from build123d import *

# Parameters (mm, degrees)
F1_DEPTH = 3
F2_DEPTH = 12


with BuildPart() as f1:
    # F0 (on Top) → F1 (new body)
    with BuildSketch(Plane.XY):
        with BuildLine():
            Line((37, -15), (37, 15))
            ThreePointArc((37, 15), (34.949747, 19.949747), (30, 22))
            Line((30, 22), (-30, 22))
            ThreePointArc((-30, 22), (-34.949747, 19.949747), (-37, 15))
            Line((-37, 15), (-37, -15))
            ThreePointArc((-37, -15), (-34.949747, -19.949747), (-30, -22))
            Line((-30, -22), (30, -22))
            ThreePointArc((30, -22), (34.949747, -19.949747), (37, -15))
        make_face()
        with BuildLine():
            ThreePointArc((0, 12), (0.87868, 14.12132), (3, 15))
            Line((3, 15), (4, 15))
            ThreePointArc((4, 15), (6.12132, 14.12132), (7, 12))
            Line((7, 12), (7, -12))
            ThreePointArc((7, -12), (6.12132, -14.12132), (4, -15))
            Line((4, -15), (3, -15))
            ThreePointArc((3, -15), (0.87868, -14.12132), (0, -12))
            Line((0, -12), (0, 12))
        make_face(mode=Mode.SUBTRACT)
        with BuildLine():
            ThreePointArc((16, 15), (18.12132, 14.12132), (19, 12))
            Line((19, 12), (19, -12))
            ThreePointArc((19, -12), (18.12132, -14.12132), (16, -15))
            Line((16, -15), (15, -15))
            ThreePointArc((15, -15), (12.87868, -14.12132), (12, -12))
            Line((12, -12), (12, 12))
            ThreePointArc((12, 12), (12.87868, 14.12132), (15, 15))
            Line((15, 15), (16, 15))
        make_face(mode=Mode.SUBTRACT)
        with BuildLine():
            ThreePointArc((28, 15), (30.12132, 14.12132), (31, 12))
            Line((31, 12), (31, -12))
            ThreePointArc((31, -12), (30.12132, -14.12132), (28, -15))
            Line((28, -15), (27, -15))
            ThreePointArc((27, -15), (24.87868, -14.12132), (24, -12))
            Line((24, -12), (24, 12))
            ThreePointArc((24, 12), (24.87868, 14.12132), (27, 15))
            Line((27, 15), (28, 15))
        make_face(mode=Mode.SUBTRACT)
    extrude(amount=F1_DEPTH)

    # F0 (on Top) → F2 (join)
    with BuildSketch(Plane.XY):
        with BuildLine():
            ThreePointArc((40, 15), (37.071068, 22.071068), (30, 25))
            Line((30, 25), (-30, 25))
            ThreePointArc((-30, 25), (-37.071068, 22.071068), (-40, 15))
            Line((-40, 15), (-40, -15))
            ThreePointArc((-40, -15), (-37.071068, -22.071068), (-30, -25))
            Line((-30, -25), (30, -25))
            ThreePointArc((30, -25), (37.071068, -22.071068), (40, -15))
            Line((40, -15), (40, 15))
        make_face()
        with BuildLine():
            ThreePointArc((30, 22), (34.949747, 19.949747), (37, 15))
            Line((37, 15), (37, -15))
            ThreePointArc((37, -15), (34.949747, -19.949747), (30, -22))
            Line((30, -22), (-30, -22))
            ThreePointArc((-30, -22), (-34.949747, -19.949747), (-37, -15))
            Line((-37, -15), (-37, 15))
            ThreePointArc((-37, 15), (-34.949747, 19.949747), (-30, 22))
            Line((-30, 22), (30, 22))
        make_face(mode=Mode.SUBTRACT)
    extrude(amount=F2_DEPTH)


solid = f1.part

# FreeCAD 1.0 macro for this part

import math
import FreeCAD as App
import Part
import Sketcher

V = App.Vector
Q = App.Units.Quantity

doc = App.newDocument("Part")
params = doc.addObject("Spreadsheet::Sheet", "Params")
for row, (alias, value) in enumerate([
    ("sketch1_radius", "7.000002 mm"),
    ("sketch1_radius2", "3.000001 mm"),
    ("sketch1_width", "60 mm"),
    ("sketch1_width2", "1 mm"),
    ("sketch1_height", "30 mm"),
    ("pad1_length", "3 mm"),
    ("sketch2_radius", "9.999999 mm"),
    ("sketch2_radius2", "7.000002 mm"),
    ("sketch2_width", "60 mm"),
    ("sketch2_height", "30 mm"),
    ("pad2_length", "12 mm"),
], start=1):
    params.set(f"A{row}", alias)
    params.set(f"B{row}", "=" + value)
    params.setAlias(f"B{row}", alias)

body = doc.addObject("PartDesign::Body", "Body")

# Sketch on XY plane
sketch1 = body.newObject("Sketcher::SketchObject", "Sketch")
sketch1.AttachmentSupport = (doc.getObject("XY_Plane"), [""])
sketch1.MapMode = "FlatFace"
sketch1.addGeometry([
    Part.LineSegment(V(37, -15, 0), V(37, 15, 0)),  # 0
    Part.ArcOfCircle(Part.Circle(V(30, 15, 0), V(0, 0, 1), 7), math.radians(0), math.radians(90)),  # 1
    Part.LineSegment(V(30, 22, 0), V(-30, 22, 0)),  # 2
    Part.ArcOfCircle(Part.Circle(V(-30, 15, 0), V(0, 0, 1), 7), math.radians(90), math.radians(180)),  # 3
    Part.LineSegment(V(-37, 15, 0), V(-37, -15, 0)),  # 4
    Part.ArcOfCircle(Part.Circle(V(-30, -15, 0), V(0, 0, 1), 7), math.radians(-180), math.radians(-90)),  # 5
    Part.LineSegment(V(-30, -22, 0), V(30, -22, 0)),  # 6
    Part.ArcOfCircle(Part.Circle(V(30, -15, 0), V(0, 0, 1), 7), math.radians(-90), math.radians(0)),  # 7
    Part.LineSegment(V(0, -12, 0), V(0, 12, 0)),  # 8
    Part.ArcOfCircle(Part.Circle(V(3, 12, 0), V(0, 0, 1), 3), math.radians(90), math.radians(180)),  # 9
    Part.LineSegment(V(3, 15, 0), V(4, 15, 0)),  # 10
    Part.ArcOfCircle(Part.Circle(V(4, 12, 0), V(0, 0, 1), 3), math.radians(0), math.radians(90)),  # 11
    Part.LineSegment(V(7, 12, 0), V(7, -12, 0)),  # 12
    Part.ArcOfCircle(Part.Circle(V(4, -12, 0), V(0, 0, 1), 3), math.radians(-90), math.radians(0)),  # 13
    Part.LineSegment(V(4, -15, 0), V(3, -15, 0)),  # 14
    Part.ArcOfCircle(Part.Circle(V(3, -12, 0), V(0, 0, 1), 3), math.radians(-180), math.radians(-90)),  # 15
    Part.LineSegment(V(15, 15, 0), V(16, 15, 0)),  # 16
    Part.ArcOfCircle(Part.Circle(V(16, 12, 0), V(0, 0, 1), 3), math.radians(0), math.radians(90)),  # 17
    Part.LineSegment(V(19, 12, 0), V(19, -12, 0)),  # 18
    Part.ArcOfCircle(Part.Circle(V(16, -12, 0), V(0, 0, 1), 3), math.radians(-90), math.radians(0)),  # 19
    Part.LineSegment(V(16, -15, 0), V(15, -15, 0)),  # 20
    Part.ArcOfCircle(Part.Circle(V(15, -12, 0), V(0, 0, 1), 3), math.radians(-180), math.radians(-90)),  # 21
    Part.LineSegment(V(12, -12, 0), V(12, 12, 0)),  # 22
    Part.ArcOfCircle(Part.Circle(V(15, 12, 0), V(0, 0, 1), 3), math.radians(90), math.radians(180)),  # 23
    Part.LineSegment(V(27, 15, 0), V(28, 15, 0)),  # 24
    Part.ArcOfCircle(Part.Circle(V(28, 12, 0), V(0, 0, 1), 3), math.radians(0), math.radians(90)),  # 25
    Part.LineSegment(V(31, 12, 0), V(31, -12, 0)),  # 26
    Part.ArcOfCircle(Part.Circle(V(28, -12, 0), V(0, 0, 1), 3), math.radians(-90), math.radians(0)),  # 27
    Part.LineSegment(V(28, -15, 0), V(27, -15, 0)),  # 28
    Part.ArcOfCircle(Part.Circle(V(27, -12, 0), V(0, 0, 1), 3), math.radians(-180), math.radians(-90)),  # 29
    Part.LineSegment(V(24, -12, 0), V(24, 12, 0)),  # 30
    Part.ArcOfCircle(Part.Circle(V(27, 12, 0), V(0, 0, 1), 3), math.radians(90), math.radians(180)),  # 31
], False)
sketch1.addConstraint([
    Sketcher.Constraint("Tangent", 0, 2, 1, 1),
    Sketcher.Constraint("Tangent", 1, 2, 2, 1),
    Sketcher.Constraint("Tangent", 2, 2, 3, 1),
    Sketcher.Constraint("Tangent", 3, 2, 4, 1),
    Sketcher.Constraint("Tangent", 4, 2, 5, 1),
    Sketcher.Constraint("Tangent", 5, 2, 6, 1),
    Sketcher.Constraint("Tangent", 6, 2, 7, 1),
    Sketcher.Constraint("Tangent", 7, 2, 0, 1),
    Sketcher.Constraint("Tangent", 8, 2, 9, 2),
    Sketcher.Constraint("Tangent", 9, 1, 10, 1),
    Sketcher.Constraint("Tangent", 10, 2, 11, 2),
    Sketcher.Constraint("Tangent", 11, 1, 12, 1),
    Sketcher.Constraint("Tangent", 12, 2, 13, 2),
    Sketcher.Constraint("Tangent", 13, 1, 14, 1),
    Sketcher.Constraint("Tangent", 14, 2, 15, 2),
    Sketcher.Constraint("Tangent", 15, 1, 8, 1),
    Sketcher.Constraint("Tangent", 16, 2, 17, 2),
    Sketcher.Constraint("Tangent", 17, 1, 18, 1),
    Sketcher.Constraint("Tangent", 18, 2, 19, 2),
    Sketcher.Constraint("Tangent", 19, 1, 20, 1),
    Sketcher.Constraint("Tangent", 20, 2, 21, 2),
    Sketcher.Constraint("Tangent", 21, 1, 22, 1),
    Sketcher.Constraint("Tangent", 22, 2, 23, 2),
    Sketcher.Constraint("Tangent", 23, 1, 16, 1),
    Sketcher.Constraint("Tangent", 24, 2, 25, 2),
    Sketcher.Constraint("Tangent", 25, 1, 26, 1),
    Sketcher.Constraint("Tangent", 26, 2, 27, 2),
    Sketcher.Constraint("Tangent", 27, 1, 28, 1),
    Sketcher.Constraint("Tangent", 28, 2, 29, 2),
    Sketcher.Constraint("Tangent", 29, 1, 30, 1),
    Sketcher.Constraint("Tangent", 30, 2, 31, 2),
    Sketcher.Constraint("Tangent", 31, 1, 24, 1),
    Sketcher.Constraint("Vertical", 0),
    Sketcher.Constraint("Horizontal", 2),
    Sketcher.Constraint("Vertical", 4),
    Sketcher.Constraint("Horizontal", 6),
    Sketcher.Constraint("Vertical", 8),
    Sketcher.Constraint("Horizontal", 10),
    Sketcher.Constraint("Vertical", 12),
    Sketcher.Constraint("Horizontal", 14),
    Sketcher.Constraint("Horizontal", 16),
    Sketcher.Constraint("Vertical", 18),
    Sketcher.Constraint("Horizontal", 20),
    Sketcher.Constraint("Vertical", 22),
    Sketcher.Constraint("Horizontal", 24),
    Sketcher.Constraint("Vertical", 26),
    Sketcher.Constraint("Horizontal", 28),
    Sketcher.Constraint("Vertical", 30),
    Sketcher.Constraint("Equal", 1, 3),
    Sketcher.Constraint("Equal", 3, 5),
    Sketcher.Constraint("Equal", 5, 7),
    Sketcher.Constraint("Equal", 9, 11),
    Sketcher.Constraint("Equal", 11, 13),
    Sketcher.Constraint("Equal", 13, 15),
    Sketcher.Constraint("Equal", 15, 17),
    Sketcher.Constraint("Equal", 17, 19),
    Sketcher.Constraint("Equal", 19, 21),
    Sketcher.Constraint("Equal", 21, 23),
    Sketcher.Constraint("Equal", 23, 25),
    Sketcher.Constraint("Equal", 25, 27),
    Sketcher.Constraint("Equal", 27, 29),
    Sketcher.Constraint("Equal", 29, 31),
    Sketcher.Constraint("Symmetric", 1, 3, 5, 3, -1, 1),
    Sketcher.Constraint("Symmetric", 8, 2, 15, 1, -1, 1),
    Sketcher.Constraint("Horizontal", 11, 3, 17, 3),
    Sketcher.Constraint("Horizontal", 15, 3, 19, 3),
    Sketcher.Constraint("Horizontal", 23, 3, 25, 3),
    Sketcher.Constraint("Horizontal", 21, 3, 27, 3),
    Sketcher.Constraint("Horizontal", 3, 2, 9, 1),
    Sketcher.Constraint("Equal", 14, 16),
    Sketcher.Constraint("Equal", 20, 24),
    Sketcher.Constraint("Radius", 1, Q("7.000002 mm")),
    Sketcher.Constraint("Radius", 9, Q("3.000001 mm")),
    Sketcher.Constraint("DistanceX", 2, 2, 2, 1, Q("60 mm")),
    Sketcher.Constraint("DistanceX", 10, 1, 10, 2, Q("1 mm")),
    Sketcher.Constraint("DistanceY", 0, 1, 0, 2, Q("30 mm")),
    Sketcher.Constraint("DistanceX", -1, 1, 17, 3, Q("15.999999 mm")),
    Sketcher.Constraint("DistanceX", -1, 1, 25, 3, Q("27.999999 mm")),
])
sketch1.setExpression("Constraints[71]", "Params.sketch1_radius")
sketch1.setExpression("Constraints[72]", "Params.sketch1_radius2")
sketch1.setExpression("Constraints[73]", "Params.sketch1_width")
sketch1.setExpression("Constraints[74]", "Params.sketch1_width2")
sketch1.setExpression("Constraints[75]", "Params.sketch1_height")
pad1 = body.newObject("PartDesign::Pad", "Pad")
pad1.Profile = sketch1
pad1.setExpression("Length", "Params.pad1_length")

# Sketch on XY plane
sketch2 = body.newObject("Sketcher::SketchObject", "Sketch001")
sketch2.AttachmentSupport = (doc.getObject("XY_Plane"), [""])
sketch2.MapMode = "FlatFace"
sketch2.addGeometry([
    Part.ArcOfCircle(Part.Circle(V(30, 15, 0), V(0, 0, 1), 10), math.radians(0), math.radians(90)),  # 0
    Part.LineSegment(V(30, 25, 0), V(-30, 25, 0)),  # 1
    Part.ArcOfCircle(Part.Circle(V(-30, 15, 0), V(0, 0, 1), 10), math.radians(90), math.radians(180)),  # 2
    Part.LineSegment(V(-40, 15, 0), V(-40, -15, 0)),  # 3
    Part.ArcOfCircle(Part.Circle(V(-30, -15, 0), V(0, 0, 1), 10), math.radians(180), math.radians(270)),  # 4
    Part.LineSegment(V(-30, -25, 0), V(30, -25, 0)),  # 5
    Part.ArcOfCircle(Part.Circle(V(30, -15, 0), V(0, 0, 1), 10), math.radians(-90), math.radians(0)),  # 6
    Part.LineSegment(V(40, -15, 0), V(40, 15, 0)),  # 7
    Part.LineSegment(V(-30, 22, 0), V(30, 22, 0)),  # 8
    Part.ArcOfCircle(Part.Circle(V(30, 15, 0), V(0, 0, 1), 7), math.radians(0), math.radians(90)),  # 9
    Part.LineSegment(V(37, 15, 0), V(37, -15, 0)),  # 10
    Part.ArcOfCircle(Part.Circle(V(30, -15, 0), V(0, 0, 1), 7), math.radians(-90), math.radians(0)),  # 11
    Part.LineSegment(V(30, -22, 0), V(-30, -22, 0)),  # 12
    Part.ArcOfCircle(Part.Circle(V(-30, -15, 0), V(0, 0, 1), 7), math.radians(-180), math.radians(-90)),  # 13
    Part.LineSegment(V(-37, -15, 0), V(-37, 15, 0)),  # 14
    Part.ArcOfCircle(Part.Circle(V(-30, 15, 0), V(0, 0, 1), 7), math.radians(90), math.radians(180)),  # 15
], False)
sketch2.addConstraint([
    Sketcher.Constraint("Tangent", 0, 2, 1, 1),
    Sketcher.Constraint("Tangent", 1, 2, 2, 1),
    Sketcher.Constraint("Tangent", 2, 2, 3, 1),
    Sketcher.Constraint("Tangent", 3, 2, 4, 1),
    Sketcher.Constraint("Tangent", 4, 2, 5, 1),
    Sketcher.Constraint("Tangent", 5, 2, 6, 1),
    Sketcher.Constraint("Tangent", 6, 2, 7, 1),
    Sketcher.Constraint("Tangent", 7, 2, 0, 1),
    Sketcher.Constraint("Tangent", 8, 2, 9, 2),
    Sketcher.Constraint("Tangent", 9, 1, 10, 1),
    Sketcher.Constraint("Tangent", 10, 2, 11, 2),
    Sketcher.Constraint("Tangent", 11, 1, 12, 1),
    Sketcher.Constraint("Tangent", 12, 2, 13, 2),
    Sketcher.Constraint("Tangent", 13, 1, 14, 1),
    Sketcher.Constraint("Tangent", 14, 2, 15, 2),
    Sketcher.Constraint("Tangent", 15, 1, 8, 1),
    Sketcher.Constraint("Horizontal", 1),
    Sketcher.Constraint("Vertical", 3),
    Sketcher.Constraint("Horizontal", 5),
    Sketcher.Constraint("Vertical", 7),
    Sketcher.Constraint("Horizontal", 8),
    Sketcher.Constraint("Vertical", 10),
    Sketcher.Constraint("Horizontal", 12),
    Sketcher.Constraint("Vertical", 14),
    Sketcher.Constraint("Coincident", 9, 3, 0, 3),
    Sketcher.Constraint("Coincident", 11, 3, 6, 3),
    Sketcher.Constraint("Coincident", 13, 3, 4, 3),
    Sketcher.Constraint("Equal", 0, 2),
    Sketcher.Constraint("Equal", 2, 4),
    Sketcher.Constraint("Equal", 4, 6),
    Sketcher.Constraint("Equal", 13, 15),
    Sketcher.Constraint("Symmetric", 0, 3, 4, 3, -1, 1),
    Sketcher.Constraint("Radius", 0, Q("9.999999 mm")),
    Sketcher.Constraint("Radius", 9, Q("7.000002 mm")),
    Sketcher.Constraint("DistanceX", 1, 2, 1, 1, Q("60 mm")),
    Sketcher.Constraint("DistanceY", 3, 2, 3, 1, Q("30 mm")),
])
sketch2.setExpression("Constraints[32]", "Params.sketch2_radius")
sketch2.setExpression("Constraints[33]", "Params.sketch2_radius2")
sketch2.setExpression("Constraints[34]", "Params.sketch2_width")
sketch2.setExpression("Constraints[35]", "Params.sketch2_height")
pad2 = body.newObject("PartDesign::Pad", "Pad001")
pad2.Profile = sketch2
pad2.setExpression("Length", "Params.pad2_length")

doc.recompute()
